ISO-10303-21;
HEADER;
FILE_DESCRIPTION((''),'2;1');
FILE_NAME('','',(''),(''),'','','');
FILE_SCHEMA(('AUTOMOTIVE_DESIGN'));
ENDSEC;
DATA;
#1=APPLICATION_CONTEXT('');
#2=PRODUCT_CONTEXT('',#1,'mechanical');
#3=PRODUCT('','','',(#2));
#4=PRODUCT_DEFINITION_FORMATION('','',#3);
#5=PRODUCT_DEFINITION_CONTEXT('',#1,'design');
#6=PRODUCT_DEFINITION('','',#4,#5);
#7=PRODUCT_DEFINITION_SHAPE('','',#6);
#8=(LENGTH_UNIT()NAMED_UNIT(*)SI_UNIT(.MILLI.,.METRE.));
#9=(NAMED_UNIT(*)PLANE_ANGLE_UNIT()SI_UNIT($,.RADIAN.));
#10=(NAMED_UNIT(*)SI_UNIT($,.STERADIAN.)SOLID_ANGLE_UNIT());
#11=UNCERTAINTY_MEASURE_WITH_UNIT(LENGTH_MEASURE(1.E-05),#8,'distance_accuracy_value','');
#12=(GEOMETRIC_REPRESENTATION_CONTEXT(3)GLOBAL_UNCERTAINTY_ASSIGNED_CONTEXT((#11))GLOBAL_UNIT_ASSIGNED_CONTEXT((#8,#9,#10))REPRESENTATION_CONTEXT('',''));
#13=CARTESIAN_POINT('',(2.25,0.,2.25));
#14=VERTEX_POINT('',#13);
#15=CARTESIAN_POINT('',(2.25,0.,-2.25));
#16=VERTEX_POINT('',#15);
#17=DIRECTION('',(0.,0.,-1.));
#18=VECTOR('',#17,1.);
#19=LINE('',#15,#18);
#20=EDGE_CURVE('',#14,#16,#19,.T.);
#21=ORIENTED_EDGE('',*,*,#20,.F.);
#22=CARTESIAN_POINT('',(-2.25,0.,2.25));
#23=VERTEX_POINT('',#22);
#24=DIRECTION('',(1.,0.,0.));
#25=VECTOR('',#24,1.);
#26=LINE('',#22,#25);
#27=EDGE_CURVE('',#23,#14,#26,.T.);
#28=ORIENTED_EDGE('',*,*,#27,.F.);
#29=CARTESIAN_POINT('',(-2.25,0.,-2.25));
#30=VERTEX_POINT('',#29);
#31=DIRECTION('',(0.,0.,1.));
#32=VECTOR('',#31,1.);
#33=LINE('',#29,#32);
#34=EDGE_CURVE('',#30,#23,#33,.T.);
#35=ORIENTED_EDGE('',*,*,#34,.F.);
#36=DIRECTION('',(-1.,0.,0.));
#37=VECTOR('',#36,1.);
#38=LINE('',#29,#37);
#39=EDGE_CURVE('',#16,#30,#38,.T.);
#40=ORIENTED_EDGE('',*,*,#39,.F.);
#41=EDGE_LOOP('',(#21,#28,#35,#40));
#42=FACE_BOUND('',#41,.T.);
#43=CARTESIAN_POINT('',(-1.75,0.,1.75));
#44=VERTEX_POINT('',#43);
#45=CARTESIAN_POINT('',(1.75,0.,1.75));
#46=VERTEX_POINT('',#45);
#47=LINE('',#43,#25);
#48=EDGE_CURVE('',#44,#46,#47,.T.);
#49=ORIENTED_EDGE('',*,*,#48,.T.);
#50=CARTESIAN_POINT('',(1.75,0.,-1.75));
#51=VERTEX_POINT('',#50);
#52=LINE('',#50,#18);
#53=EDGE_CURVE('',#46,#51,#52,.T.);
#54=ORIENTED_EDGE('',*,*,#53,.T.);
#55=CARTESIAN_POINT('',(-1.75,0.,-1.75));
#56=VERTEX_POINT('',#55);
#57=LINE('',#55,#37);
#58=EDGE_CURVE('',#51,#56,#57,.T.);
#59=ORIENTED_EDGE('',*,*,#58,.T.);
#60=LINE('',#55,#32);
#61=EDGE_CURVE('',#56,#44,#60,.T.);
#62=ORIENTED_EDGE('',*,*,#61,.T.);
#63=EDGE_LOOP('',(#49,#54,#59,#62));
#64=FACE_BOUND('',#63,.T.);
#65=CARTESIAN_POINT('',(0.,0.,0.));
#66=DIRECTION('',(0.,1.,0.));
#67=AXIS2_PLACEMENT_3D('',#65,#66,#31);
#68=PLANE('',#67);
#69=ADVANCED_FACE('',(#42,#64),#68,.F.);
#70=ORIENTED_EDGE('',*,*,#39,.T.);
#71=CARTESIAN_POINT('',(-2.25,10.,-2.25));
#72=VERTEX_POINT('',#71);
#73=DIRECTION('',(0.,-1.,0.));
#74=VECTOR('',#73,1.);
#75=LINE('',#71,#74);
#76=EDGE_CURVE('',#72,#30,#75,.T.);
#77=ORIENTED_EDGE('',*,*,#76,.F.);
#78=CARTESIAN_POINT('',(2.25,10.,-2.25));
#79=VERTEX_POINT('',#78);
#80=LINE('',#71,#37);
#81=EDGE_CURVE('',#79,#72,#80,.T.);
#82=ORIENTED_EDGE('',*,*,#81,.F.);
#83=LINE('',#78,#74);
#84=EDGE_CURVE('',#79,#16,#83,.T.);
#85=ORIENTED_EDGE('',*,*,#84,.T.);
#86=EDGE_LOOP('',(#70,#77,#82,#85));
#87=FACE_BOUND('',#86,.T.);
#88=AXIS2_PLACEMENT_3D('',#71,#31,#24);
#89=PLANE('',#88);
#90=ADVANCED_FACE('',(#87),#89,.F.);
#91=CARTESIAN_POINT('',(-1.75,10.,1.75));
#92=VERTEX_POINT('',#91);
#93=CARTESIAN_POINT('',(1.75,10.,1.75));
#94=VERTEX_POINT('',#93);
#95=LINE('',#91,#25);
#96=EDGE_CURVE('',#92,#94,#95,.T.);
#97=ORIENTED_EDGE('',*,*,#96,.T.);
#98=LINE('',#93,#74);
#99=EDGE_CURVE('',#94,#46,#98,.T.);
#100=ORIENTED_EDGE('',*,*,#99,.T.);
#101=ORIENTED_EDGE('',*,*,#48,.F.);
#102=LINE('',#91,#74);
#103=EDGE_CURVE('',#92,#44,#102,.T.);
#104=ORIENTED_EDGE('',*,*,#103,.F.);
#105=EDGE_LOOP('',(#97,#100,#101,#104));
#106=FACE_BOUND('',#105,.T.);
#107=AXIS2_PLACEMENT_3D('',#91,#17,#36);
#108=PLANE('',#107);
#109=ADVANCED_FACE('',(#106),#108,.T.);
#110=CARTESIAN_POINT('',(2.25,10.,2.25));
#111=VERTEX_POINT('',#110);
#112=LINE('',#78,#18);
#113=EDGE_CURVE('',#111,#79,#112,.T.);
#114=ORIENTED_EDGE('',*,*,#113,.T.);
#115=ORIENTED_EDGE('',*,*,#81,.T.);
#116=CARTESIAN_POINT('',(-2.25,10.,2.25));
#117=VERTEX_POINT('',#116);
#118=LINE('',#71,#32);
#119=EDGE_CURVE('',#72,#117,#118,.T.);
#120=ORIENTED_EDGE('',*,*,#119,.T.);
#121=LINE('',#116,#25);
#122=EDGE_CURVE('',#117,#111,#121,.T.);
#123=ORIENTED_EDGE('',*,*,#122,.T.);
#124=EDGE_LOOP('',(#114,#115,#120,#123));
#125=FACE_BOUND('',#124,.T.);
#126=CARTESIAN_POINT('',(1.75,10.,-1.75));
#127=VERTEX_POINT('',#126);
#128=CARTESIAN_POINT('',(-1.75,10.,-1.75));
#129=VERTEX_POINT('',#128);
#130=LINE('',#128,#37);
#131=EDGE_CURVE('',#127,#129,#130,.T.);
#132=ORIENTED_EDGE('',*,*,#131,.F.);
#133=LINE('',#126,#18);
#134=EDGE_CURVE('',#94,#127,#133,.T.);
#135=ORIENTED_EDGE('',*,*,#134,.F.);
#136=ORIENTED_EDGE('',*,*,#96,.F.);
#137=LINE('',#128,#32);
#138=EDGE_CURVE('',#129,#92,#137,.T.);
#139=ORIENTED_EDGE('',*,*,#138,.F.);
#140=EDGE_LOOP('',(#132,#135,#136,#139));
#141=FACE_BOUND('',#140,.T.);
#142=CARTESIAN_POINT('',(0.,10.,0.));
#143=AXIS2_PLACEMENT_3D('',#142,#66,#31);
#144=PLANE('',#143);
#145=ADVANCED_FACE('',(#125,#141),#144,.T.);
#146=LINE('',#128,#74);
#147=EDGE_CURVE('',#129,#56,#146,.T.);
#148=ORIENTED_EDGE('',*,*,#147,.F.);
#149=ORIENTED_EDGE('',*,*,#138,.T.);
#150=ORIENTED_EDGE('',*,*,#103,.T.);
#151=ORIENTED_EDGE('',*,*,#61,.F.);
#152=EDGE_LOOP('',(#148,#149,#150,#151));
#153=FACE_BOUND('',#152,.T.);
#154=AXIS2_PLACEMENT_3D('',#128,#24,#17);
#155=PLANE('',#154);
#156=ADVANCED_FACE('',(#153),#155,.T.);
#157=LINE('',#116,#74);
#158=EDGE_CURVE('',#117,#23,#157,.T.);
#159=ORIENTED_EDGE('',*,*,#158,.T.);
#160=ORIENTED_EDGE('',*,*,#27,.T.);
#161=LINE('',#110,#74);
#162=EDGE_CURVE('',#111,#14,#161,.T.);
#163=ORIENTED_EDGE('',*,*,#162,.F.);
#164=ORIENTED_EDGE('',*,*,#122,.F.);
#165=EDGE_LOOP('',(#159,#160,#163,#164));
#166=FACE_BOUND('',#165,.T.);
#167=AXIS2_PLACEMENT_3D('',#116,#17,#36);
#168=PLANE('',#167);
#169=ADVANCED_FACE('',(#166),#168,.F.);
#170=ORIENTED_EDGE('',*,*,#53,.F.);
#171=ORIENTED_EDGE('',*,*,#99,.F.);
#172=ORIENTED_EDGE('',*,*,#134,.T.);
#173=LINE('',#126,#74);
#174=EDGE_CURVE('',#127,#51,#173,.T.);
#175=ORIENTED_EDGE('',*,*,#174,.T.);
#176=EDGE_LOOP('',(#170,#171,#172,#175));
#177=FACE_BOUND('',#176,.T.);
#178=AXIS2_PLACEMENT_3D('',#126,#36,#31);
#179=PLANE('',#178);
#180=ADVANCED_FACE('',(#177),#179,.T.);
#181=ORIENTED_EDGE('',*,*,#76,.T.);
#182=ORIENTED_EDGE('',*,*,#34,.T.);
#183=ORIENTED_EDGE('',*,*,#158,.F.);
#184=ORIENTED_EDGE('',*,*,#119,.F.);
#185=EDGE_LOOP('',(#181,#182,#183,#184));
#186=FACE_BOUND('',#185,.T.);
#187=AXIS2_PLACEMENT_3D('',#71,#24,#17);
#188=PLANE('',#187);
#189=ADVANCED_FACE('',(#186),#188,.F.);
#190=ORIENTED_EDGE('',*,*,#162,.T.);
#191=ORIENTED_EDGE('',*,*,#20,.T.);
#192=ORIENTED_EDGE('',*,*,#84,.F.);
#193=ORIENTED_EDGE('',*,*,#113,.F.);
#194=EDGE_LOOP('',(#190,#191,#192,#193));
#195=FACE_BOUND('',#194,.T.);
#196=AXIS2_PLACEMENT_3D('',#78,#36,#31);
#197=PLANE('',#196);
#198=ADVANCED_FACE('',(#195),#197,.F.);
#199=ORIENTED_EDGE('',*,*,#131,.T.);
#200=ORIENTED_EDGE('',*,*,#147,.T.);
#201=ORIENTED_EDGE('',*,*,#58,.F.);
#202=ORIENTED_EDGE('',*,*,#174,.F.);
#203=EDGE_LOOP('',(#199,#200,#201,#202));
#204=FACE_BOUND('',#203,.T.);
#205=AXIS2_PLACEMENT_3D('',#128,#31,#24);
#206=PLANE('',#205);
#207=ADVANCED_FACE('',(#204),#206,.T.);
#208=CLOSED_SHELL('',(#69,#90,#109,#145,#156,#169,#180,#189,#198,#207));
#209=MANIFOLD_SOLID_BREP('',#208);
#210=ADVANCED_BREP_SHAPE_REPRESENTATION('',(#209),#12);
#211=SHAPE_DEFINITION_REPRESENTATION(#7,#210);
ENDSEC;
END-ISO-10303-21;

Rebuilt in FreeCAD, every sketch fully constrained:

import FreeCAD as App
import Part
import Sketcher
from FreeCAD import Vector
Q = App.Units.Quantity

doc = App.newDocument("Part")
body = doc.addObject("PartDesign::Body", "Body")

sketch1 = body.newObject("Sketcher::SketchObject", "Sketch")
sketch1.AttachmentSupport = (doc.getObject("XZ_Plane"), [""])
sketch1.MapMode = "FlatFace"
sketch1.addGeometry([
    Part.LineSegment(Vector(-2.25, -2.25, 0), Vector(-2.25, 2.25, 0)),
    Part.LineSegment(Vector(-2.25, 2.25, 0), Vector(2.25, 2.25, 0)),
    Part.LineSegment(Vector(2.25, 2.25, 0), Vector(2.25, -2.25, 0)),
    Part.LineSegment(Vector(2.25, -2.25, 0), Vector(-2.25, -2.25, 0)),
    Part.LineSegment(Vector(1.75, 1.75, 0), Vector(-1.75, 1.75, 0)),
    Part.LineSegment(Vector(-1.75, 1.75, 0), Vector(-1.75, -1.75, 0)),
    Part.LineSegment(Vector(-1.75, -1.75, 0), Vector(1.75, -1.75, 0)),
    Part.LineSegment(Vector(1.75, -1.75, 0), Vector(1.75, 1.75, 0)),
], False)
sketch1.addConstraint([
    Sketcher.Constraint("Coincident", 0, 2, 1, 1),
    Sketcher.Constraint("Coincident", 1, 2, 2, 1),
    Sketcher.Constraint("Coincident", 2, 2, 3, 1),
    Sketcher.Constraint("Coincident", 3, 2, 0, 1),
    Sketcher.Constraint("Coincident", 4, 2, 5, 1),
    Sketcher.Constraint("Coincident", 5, 2, 6, 1),
    Sketcher.Constraint("Coincident", 6, 2, 7, 1),
    Sketcher.Constraint("Coincident", 7, 2, 4, 1),
    Sketcher.Constraint("Vertical", 0),
    Sketcher.Constraint("Horizontal", 1),
    Sketcher.Constraint("Vertical", 2),
    Sketcher.Constraint("Horizontal", 3),
    Sketcher.Constraint("Horizontal", 4),
    Sketcher.Constraint("Vertical", 5),
    Sketcher.Constraint("Horizontal", 6),
    Sketcher.Constraint("Vertical", 7),
    Sketcher.Constraint("Symmetric", 0, 2, 2, 2, -1, 1),
    Sketcher.Constraint("Symmetric", 4, 2, 6, 2, -1, 1),
    Sketcher.Constraint("Equal", 3, 0),
    Sketcher.Constraint("Equal", 6, 5),
    Sketcher.Constraint("DistanceX", 1, 1, 1, 2, Q("4.5 mm")),
    Sketcher.Constraint("DistanceX", 4, 2, 4, 1, Q("3.5 mm")),
])
pad1 = body.newObject("PartDesign::Pad", "Pad")
pad1.Profile = sketch1
pad1.Length = 10
pad1.Reversed = True

doc.recompute()
